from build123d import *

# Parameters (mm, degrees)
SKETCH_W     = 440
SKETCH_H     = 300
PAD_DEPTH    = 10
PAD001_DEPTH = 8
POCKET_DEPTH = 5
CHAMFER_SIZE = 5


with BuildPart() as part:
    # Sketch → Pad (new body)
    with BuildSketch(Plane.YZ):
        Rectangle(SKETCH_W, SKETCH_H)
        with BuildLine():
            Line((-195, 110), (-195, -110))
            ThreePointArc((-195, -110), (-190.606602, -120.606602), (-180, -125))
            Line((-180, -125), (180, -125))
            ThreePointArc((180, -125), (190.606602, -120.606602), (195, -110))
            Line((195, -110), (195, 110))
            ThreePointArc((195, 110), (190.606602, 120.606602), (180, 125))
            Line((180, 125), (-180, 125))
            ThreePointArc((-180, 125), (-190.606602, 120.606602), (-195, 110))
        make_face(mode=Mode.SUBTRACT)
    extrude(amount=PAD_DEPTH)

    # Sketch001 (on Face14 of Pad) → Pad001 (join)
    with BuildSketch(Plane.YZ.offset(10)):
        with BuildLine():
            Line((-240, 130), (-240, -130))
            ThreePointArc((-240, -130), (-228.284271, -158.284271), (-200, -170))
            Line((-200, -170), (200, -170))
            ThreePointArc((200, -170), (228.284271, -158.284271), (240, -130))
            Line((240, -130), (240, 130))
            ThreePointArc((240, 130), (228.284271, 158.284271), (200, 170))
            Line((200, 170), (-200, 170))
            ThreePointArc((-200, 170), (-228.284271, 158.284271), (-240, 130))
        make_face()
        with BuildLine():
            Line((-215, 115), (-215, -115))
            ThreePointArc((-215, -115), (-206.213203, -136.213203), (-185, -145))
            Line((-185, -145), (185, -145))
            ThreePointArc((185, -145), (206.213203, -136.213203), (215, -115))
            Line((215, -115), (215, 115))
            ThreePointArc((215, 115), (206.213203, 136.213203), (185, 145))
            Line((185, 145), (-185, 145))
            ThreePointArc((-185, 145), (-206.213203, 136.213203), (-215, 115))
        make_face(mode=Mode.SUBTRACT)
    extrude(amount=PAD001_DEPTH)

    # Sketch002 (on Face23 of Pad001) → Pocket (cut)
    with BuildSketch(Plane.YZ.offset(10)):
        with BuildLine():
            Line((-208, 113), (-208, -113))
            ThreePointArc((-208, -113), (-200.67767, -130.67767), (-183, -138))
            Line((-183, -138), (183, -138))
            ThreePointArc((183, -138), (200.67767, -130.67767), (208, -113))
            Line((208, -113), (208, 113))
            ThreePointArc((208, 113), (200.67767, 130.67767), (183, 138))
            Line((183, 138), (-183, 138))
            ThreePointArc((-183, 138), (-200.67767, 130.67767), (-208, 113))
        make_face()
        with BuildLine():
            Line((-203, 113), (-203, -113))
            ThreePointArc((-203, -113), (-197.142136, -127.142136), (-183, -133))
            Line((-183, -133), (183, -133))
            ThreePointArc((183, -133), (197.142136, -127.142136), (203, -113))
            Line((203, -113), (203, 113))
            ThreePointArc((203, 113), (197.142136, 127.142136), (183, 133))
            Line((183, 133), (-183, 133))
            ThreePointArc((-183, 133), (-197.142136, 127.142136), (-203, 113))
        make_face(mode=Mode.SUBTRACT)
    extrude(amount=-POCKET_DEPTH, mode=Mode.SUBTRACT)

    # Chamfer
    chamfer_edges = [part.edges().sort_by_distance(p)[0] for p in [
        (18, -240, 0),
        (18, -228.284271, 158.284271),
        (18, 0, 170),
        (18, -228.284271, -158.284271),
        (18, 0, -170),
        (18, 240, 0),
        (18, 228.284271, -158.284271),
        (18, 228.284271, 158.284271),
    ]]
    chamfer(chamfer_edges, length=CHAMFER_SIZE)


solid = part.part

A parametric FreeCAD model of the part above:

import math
import FreeCAD as App
import Part
import Sketcher


def edges_at(feature, points):
    """Names of the edges that pass closest to the given points."""
    edges = feature.Shape.Edges
    near = lambda p: min(range(len(edges)), key=lambda i: edges[i].distToShape(Part.Vertex(*p))[0])
    return sorted({f"Edge{near(p) + 1}" for p in points})


def add_polygon(sketch, points):
    """Adds a closed chain of lines whose ends are joined by coincident constraints."""
    first, n = sketch.GeometryCount, len(points)
    for a, b in zip(points, points[1:] + points[:1]):
        sketch.addGeometry(Part.LineSegment(App.Vector(*a, 0), App.Vector(*b, 0)), False)
    for i in range(n):
        sketch.addConstraint(Sketcher.Constraint("Coincident", first + i, 2, first + (i + 1) % n, 1))

doc = App.newDocument("Part")
params = doc.addObject("Spreadsheet::Sheet", "Params")
for row, (alias, value) in enumerate([
    ("sketch1_radius", "14.999999 mm"),
    ("sketch1_width", "440 mm"),
    ("sketch1_width2", "360 mm"),
    ("sketch1_height", "300 mm"),
    ("sketch1_height2", "220 mm"),
    ("pad1_length", "10 mm"),
    ("sketch2_radius", "40.000001 mm"),
    ("sketch2_radius2", "30.000001 mm"),
    ("sketch2_width", "400 mm"),
    ("sketch2_width2", "370 mm"),
    ("sketch2_height", "260 mm"),
    ("pad2_length", "8 mm"),
    ("sketch3_radius", "24.999998 mm"),
    ("sketch3_radius2", "19.999999 mm"),
    ("sketch3_width", "366 mm"),
    ("sketch3_height", "226 mm"),
    ("pocket1_length", "5 mm"),
    ("chamfer_size", "5 mm"),
], start=1):
    params.set(f"A{row}", alias)
    params.set(f"B{row}", "=" + value)
    params.setAlias(f"B{row}", alias)

body = doc.addObject("PartDesign::Body", "Body")

sketch1 = body.newObject("Sketcher::SketchObject", "Sketch")
sketch1.AttachmentSupport = (doc.getObject("YZ_Plane"), [""])
sketch1.MapMode = "FlatFace"
add_polygon(sketch1, [(-220, 150), (-220, -150), (220, -150), (220, 150)])
sketch1.addGeometry(Part.LineSegment(App.Vector(-195, -110, 0), App.Vector(-195, 110, 0)), False)
sketch1.addGeometry(Part.ArcOfCircle(Part.Circle(App.Vector(-180, 110, 0), App.Vector(0, 0, 1), 15), math.radians(90), math.radians(180)), False)
sketch1.addGeometry(Part.LineSegment(App.Vector(-180, 125, 0), App.Vector(180, 125, 0)), False)
sketch1.addGeometry(Part.ArcOfCircle(Part.Circle(App.Vector(180, 110, 0), App.Vector(0, 0, 1), 15), math.radians(0), math.radians(90)), False)
sketch1.addGeometry(Part.LineSegment(App.Vector(195, 110, 0), App.Vector(195, -110, 0)), False)
sketch1.addGeometry(Part.ArcOfCircle(Part.Circle(App.Vector(180, -110, 0), App.Vector(0, 0, 1), 15), math.radians(-90), math.radians(0)), False)
sketch1.addGeometry(Part.LineSegment(App.Vector(180, -125, 0), App.Vector(-180, -125, 0)), False)
sketch1.addGeometry(Part.ArcOfCircle(Part.Circle(App.Vector(-180, -110, 0), App.Vector(0, 0, 1), 15), math.radians(180), math.radians(270)), False)
sketch1.addConstraint([
    Sketcher.Constraint("Tangent", 4, 2, 5, 2),
    Sketcher.Constraint("Tangent", 5, 1, 6, 1),
    Sketcher.Constraint("Tangent", 6, 2, 7, 2),
    Sketcher.Constraint("Tangent", 7, 1, 8, 1),
    Sketcher.Constraint("Tangent", 8, 2, 9, 2),
    Sketcher.Constraint("Tangent", 9, 1, 10, 1),
    Sketcher.Constraint("Tangent", 10, 2, 11, 2),
    Sketcher.Constraint("Tangent", 11, 1, 4, 1),
    Sketcher.Constraint("Vertical", 0),
    Sketcher.Constraint("Horizontal", 1),
    Sketcher.Constraint("Vertical", 2),
    Sketcher.Constraint("Horizontal", 3),
    Sketcher.Constraint("Vertical", 4),
    Sketcher.Constraint("Horizontal", 6),
    Sketcher.Constraint("Vertical", 8),
    Sketcher.Constraint("Horizontal", 10),
    Sketcher.Constraint("Equal", 5, 7),
    Sketcher.Constraint("Equal", 7, 9),
    Sketcher.Constraint("Equal", 9, 11),
    Sketcher.Constraint("Symmetric", 5, 3, 9, 3, -1, 1),
    Sketcher.Constraint("Symmetric", 0, 2, 2, 2, -1, 1),
    Sketcher.Constraint("Radius", 5, 14.999999),
    Sketcher.Constraint("DistanceX", 1, 1, 1, 2, 440.0),
    Sketcher.Constraint("DistanceX", 6, 1, 6, 2, 360.0),
    Sketcher.Constraint("DistanceY", 0, 2, 0, 1, 300.0),
    Sketcher.Constraint("DistanceY", 4, 1, 4, 2, 220.0),
])
sketch1.setExpression("Constraints[25]", "Params.sketch1_radius")
sketch1.setExpression("Constraints[26]", "Params.sketch1_width")
sketch1.setExpression("Constraints[27]", "Params.sketch1_width2")
sketch1.setExpression("Constraints[28]", "Params.sketch1_height")
sketch1.setExpression("Constraints[29]", "Params.sketch1_height2")
pad1 = body.newObject("PartDesign::Pad", "Pad")
pad1.Profile = sketch1
pad1.setExpression("Length", "Params.pad1_length")

sketch2 = body.newObject("Sketcher::SketchObject", "Sketch001")
sketch2.AttachmentSupport = (doc.getObject("YZ_Plane"), [""])
sketch2.MapMode = "FlatFace"
sketch2.AttachmentOffset = App.Placement(App.Vector(0, 0, 10), App.Rotation())
sketch2.addGeometry([
    Part.LineSegment(App.Vector(-240, 130, 0), App.Vector(-240, -130, 0)),
    Part.ArcOfCircle(Part.Circle(App.Vector(-200, -130, 0), App.Vector(0, 0, 1), 40), math.radians(-180), math.radians(-90)),
    Part.LineSegment(App.Vector(-200, -170, 0), App.Vector(200, -170, 0)),
    Part.ArcOfCircle(Part.Circle(App.Vector(200, -130, 0), App.Vector(0, 0, 1), 40), math.radians(-90), math.radians(0)),
    Part.LineSegment(App.Vector(240, -130, 0), App.Vector(240, 130, 0)),
    Part.ArcOfCircle(Part.Circle(App.Vector(200, 130, 0), App.Vector(0, 0, 1), 40), math.radians(0), math.radians(90)),
    Part.LineSegment(App.Vector(200, 170, 0), App.Vector(-200, 170, 0)),
    Part.ArcOfCircle(Part.Circle(App.Vector(-200, 130, 0), App.Vector(0, 0, 1), 40), math.radians(90), math.radians(180)),
    Part.LineSegment(App.Vector(-215, -115, 0), App.Vector(-215, 115, 0)),
    Part.ArcOfCircle(Part.Circle(App.Vector(-185, 115, 0), App.Vector(0, 0, 1), 30), math.radians(90), math.radians(180)),
    Part.LineSegment(App.Vector(-185, 145, 0), App.Vector(185, 145, 0)),
    Part.ArcOfCircle(Part.Circle(App.Vector(185, 115, 0), App.Vector(0, 0, 1), 30), math.radians(0), math.radians(90)),
    Part.LineSegment(App.Vector(215, 115, 0), App.Vector(215, -115, 0)),
    Part.ArcOfCircle(Part.Circle(App.Vector(185, -115, 0), App.Vector(0, 0, 1), 30), math.radians(-90), math.radians(0)),
    Part.LineSegment(App.Vector(185, -145, 0), App.Vector(-185, -145, 0)),
    Part.ArcOfCircle(Part.Circle(App.Vector(-185, -115, 0), App.Vector(0, 0, 1), 30), math.radians(-180), math.radians(-90)),
], False)
sketch2.addConstraint([
    Sketcher.Constraint("Tangent", 0, 2, 1, 1),
    Sketcher.Constraint("Tangent", 1, 2, 2, 1),
    Sketcher.Constraint("Tangent", 2, 2, 3, 1),
    Sketcher.Constraint("Tangent", 3, 2, 4, 1),
    Sketcher.Constraint("Tangent", 4, 2, 5, 1),
    Sketcher.Constraint("Tangent", 5, 2, 6, 1),
    Sketcher.Constraint("Tangent", 6, 2, 7, 1),
    Sketcher.Constraint("Tangent", 7, 2, 0, 1),
    Sketcher.Constraint("Tangent", 8, 2, 9, 2),
    Sketcher.Constraint("Tangent", 9, 1, 10, 1),
    Sketcher.Constraint("Tangent", 10, 2, 11, 2),
    Sketcher.Constraint("Tangent", 11, 1, 12, 1),
    Sketcher.Constraint("Tangent", 12, 2, 13, 2),
    Sketcher.Constraint("Tangent", 13, 1, 14, 1),
    Sketcher.Constraint("Tangent", 14, 2, 15, 2),
    Sketcher.Constraint("Tangent", 15, 1, 8, 1),
    Sketcher.Constraint("Vertical", 0),
    Sketcher.Constraint("Horizontal", 2),
    Sketcher.Constraint("Vertical", 4),
    Sketcher.Constraint("Horizontal", 6),
    Sketcher.Constraint("Vertical", 8),
    Sketcher.Constraint("Horizontal", 10),
    Sketcher.Constraint("Vertical", 12),
    Sketcher.Constraint("Horizontal", 14),
    Sketcher.Constraint("Equal", 1, 3),
    Sketcher.Constraint("Equal", 3, 5),
    Sketcher.Constraint("Equal", 5, 7),
    Sketcher.Constraint("Equal", 9, 11),
    Sketcher.Constraint("Equal", 11, 13),
    Sketcher.Constraint("Equal", 13, 15),
    Sketcher.Constraint("Symmetric", 1, 3, 5, 3, -1, 1),
    Sketcher.Constraint("Symmetric", 9, 3, 13, 3, -1, 1),
    Sketcher.Constraint("Radius", 1, 40.000001),
    Sketcher.Constraint("Radius", 9, 30.000001),
    Sketcher.Constraint("DistanceX", 2, 1, 2, 2, 400.0),
    Sketcher.Constraint("DistanceX", 10, 1, 10, 2, 370.0),
    Sketcher.Constraint("DistanceY", 0, 2, 0, 1, 260.0),
    Sketcher.Constraint("DistanceY", 8, 1, 8, 2, 230.0),
])
sketch2.setExpression("Constraints[32]", "Params.sketch2_radius")
sketch2.setExpression("Constraints[33]", "Params.sketch2_radius2")
sketch2.setExpression("Constraints[34]", "Params.sketch2_width")
sketch2.setExpression("Constraints[35]", "Params.sketch2_width2")
sketch2.setExpression("Constraints[36]", "Params.sketch2_height")
pad2 = body.newObject("PartDesign::Pad", "Pad001")
pad2.Profile = sketch2
pad2.setExpression("Length", "Params.pad2_length")

sketch3 = body.newObject("Sketcher::SketchObject", "Sketch002")
sketch3.AttachmentSupport = (doc.getObject("YZ_Plane"), [""])
sketch3.MapMode = "FlatFace"
sketch3.AttachmentOffset = App.Placement(App.Vector(0, 0, 10), App.Rotation())
sketch3.addGeometry([
    Part.LineSegment(App.Vector(-208, 113, 0), App.Vector(-208, -113, 0)),
    Part.ArcOfCircle(Part.Circle(App.Vector(-183, -113, 0), App.Vector(0, 0, 1), 25), math.radians(180), math.radians(270)),
    Part.LineSegment(App.Vector(-183, -138, 0), App.Vector(183, -138, 0)),
    Part.ArcOfCircle(Part.Circle(App.Vector(183, -113, 0), App.Vector(0, 0, 1), 25), math.radians(-90), math.radians(0)),
    Part.LineSegment(App.Vector(208, -113, 0), App.Vector(208, 113, 0)),
    Part.ArcOfCircle(Part.Circle(App.Vector(183, 113, 0), App.Vector(0, 0, 1), 25), math.radians(0), math.radians(90)),
    Part.LineSegment(App.Vector(183, 138, 0), App.Vector(-183, 138, 0)),
    Part.ArcOfCircle(Part.Circle(App.Vector(-183, 113, 0), App.Vector(0, 0, 1), 25), math.radians(90), math.radians(180)),
    Part.LineSegment(App.Vector(-203, -113, 0), App.Vector(-203, 113, 0)),
    Part.ArcOfCircle(Part.Circle(App.Vector(-183, 113, 0), App.Vector(0, 0, 1), 20), math.radians(90), math.radians(180)),
    Part.LineSegment(App.Vector(-183, 133, 0), App.Vector(183, 133, 0)),
    Part.ArcOfCircle(Part.Circle(App.Vector(183, 113, 0), App.Vector(0, 0, 1), 20), math.radians(0), math.radians(90)),
    Part.LineSegment(App.Vector(203, 113, 0), App.Vector(203, -113, 0)),
    Part.ArcOfCircle(Part.Circle(App.Vector(183, -113, 0), App.Vector(0, 0, 1), 20), math.radians(-90), math.radians(0)),
    Part.LineSegment(App.Vector(183, -133, 0), App.Vector(-183, -133, 0)),
    Part.ArcOfCircle(Part.Circle(App.Vector(-183, -113, 0), App.Vector(0, 0, 1), 20), math.radians(180), math.radians(270)),
], False)
sketch3.addConstraint([
    Sketcher.Constraint("Tangent", 0, 2, 1, 1),
    Sketcher.Constraint("Tangent", 1, 2, 2, 1),
    Sketcher.Constraint("Tangent", 2, 2, 3, 1),
    Sketcher.Constraint("Tangent", 3, 2, 4, 1),
    Sketcher.Constraint("Tangent", 4, 2, 5, 1),
    Sketcher.Constraint("Tangent", 5, 2, 6, 1),
    Sketcher.Constraint("Tangent", 6, 2, 7, 1),
    Sketcher.Constraint("Tangent", 7, 2, 0, 1),
    Sketcher.Constraint("Tangent", 8, 2, 9, 2),
    Sketcher.Constraint("Tangent", 9, 1, 10, 1),
    Sketcher.Constraint("Tangent", 10, 2, 11, 2),
    Sketcher.Constraint("Tangent", 11, 1, 12, 1),
    Sketcher.Constraint("Tangent", 12, 2, 13, 2),
    Sketcher.Constraint("Tangent", 13, 1, 14, 1),
    Sketcher.Constraint("Tangent", 14, 2, 15, 2),
    Sketcher.Constraint("Tangent", 15, 1, 8, 1),
    Sketcher.Constraint("Vertical", 0),
    Sketcher.Constraint("Horizontal", 2),
    Sketcher.Constraint("Vertical", 4),
    Sketcher.Constraint("Horizontal", 6),
    Sketcher.Constraint("Vertical", 8),
    Sketcher.Constraint("Horizontal", 10),
    Sketcher.Constraint("Vertical", 12),
    Sketcher.Constraint("Horizontal", 14),
    Sketcher.Constraint("Coincident", 9, 3, 7, 3),
    Sketcher.Constraint("Coincident", 11, 3, 5, 3),
    Sketcher.Constraint("Coincident", 13, 3, 3, 3),
    Sketcher.Constraint("Equal", 1, 3),
    Sketcher.Constraint("Equal", 3, 5),
    Sketcher.Constraint("Equal", 5, 7),
    Sketcher.Constraint("Equal", 13, 15),
    Sketcher.Constraint("Symmetric", 1, 3, 5, 3, -1, 1),
    Sketcher.Constraint("Radius", 1, 24.999998),
    Sketcher.Constraint("Radius", 9, 19.999999),
    Sketcher.Constraint("DistanceX", 2, 1, 2, 2, 366.0),
    Sketcher.Constraint("DistanceY", 0, 2, 0, 1, 226.0),
])
sketch3.setExpression("Constraints[32]", "Params.sketch3_radius")
sketch3.setExpression("Constraints[33]", "Params.sketch3_radius2")
sketch3.setExpression("Constraints[34]", "Params.sketch3_width")
sketch3.setExpression("Constraints[35]", "Params.sketch3_height")
pocket1 = body.newObject("PartDesign::Pocket", "Pocket")
pocket1.Profile = sketch3
pocket1.setExpression("Length", "Params.pocket1_length")
doc.recompute()

chamfer = body.newObject("PartDesign::Chamfer", "Chamfer")
chamfer.Base = (pocket1, edges_at(pocket1, [
    (18, -240, 0),
    (18, -228.284, 158.284),
    (18, 0, 170),
    (18, -228.284, -158.284),
    (18, 0, -170),
    (18, 240, 0),
    (18, 228.284, -158.284),
    (18, 228.284, 158.284),
]))
chamfer.setExpression("Size", "Params.chamfer_size")

doc.recompute()
